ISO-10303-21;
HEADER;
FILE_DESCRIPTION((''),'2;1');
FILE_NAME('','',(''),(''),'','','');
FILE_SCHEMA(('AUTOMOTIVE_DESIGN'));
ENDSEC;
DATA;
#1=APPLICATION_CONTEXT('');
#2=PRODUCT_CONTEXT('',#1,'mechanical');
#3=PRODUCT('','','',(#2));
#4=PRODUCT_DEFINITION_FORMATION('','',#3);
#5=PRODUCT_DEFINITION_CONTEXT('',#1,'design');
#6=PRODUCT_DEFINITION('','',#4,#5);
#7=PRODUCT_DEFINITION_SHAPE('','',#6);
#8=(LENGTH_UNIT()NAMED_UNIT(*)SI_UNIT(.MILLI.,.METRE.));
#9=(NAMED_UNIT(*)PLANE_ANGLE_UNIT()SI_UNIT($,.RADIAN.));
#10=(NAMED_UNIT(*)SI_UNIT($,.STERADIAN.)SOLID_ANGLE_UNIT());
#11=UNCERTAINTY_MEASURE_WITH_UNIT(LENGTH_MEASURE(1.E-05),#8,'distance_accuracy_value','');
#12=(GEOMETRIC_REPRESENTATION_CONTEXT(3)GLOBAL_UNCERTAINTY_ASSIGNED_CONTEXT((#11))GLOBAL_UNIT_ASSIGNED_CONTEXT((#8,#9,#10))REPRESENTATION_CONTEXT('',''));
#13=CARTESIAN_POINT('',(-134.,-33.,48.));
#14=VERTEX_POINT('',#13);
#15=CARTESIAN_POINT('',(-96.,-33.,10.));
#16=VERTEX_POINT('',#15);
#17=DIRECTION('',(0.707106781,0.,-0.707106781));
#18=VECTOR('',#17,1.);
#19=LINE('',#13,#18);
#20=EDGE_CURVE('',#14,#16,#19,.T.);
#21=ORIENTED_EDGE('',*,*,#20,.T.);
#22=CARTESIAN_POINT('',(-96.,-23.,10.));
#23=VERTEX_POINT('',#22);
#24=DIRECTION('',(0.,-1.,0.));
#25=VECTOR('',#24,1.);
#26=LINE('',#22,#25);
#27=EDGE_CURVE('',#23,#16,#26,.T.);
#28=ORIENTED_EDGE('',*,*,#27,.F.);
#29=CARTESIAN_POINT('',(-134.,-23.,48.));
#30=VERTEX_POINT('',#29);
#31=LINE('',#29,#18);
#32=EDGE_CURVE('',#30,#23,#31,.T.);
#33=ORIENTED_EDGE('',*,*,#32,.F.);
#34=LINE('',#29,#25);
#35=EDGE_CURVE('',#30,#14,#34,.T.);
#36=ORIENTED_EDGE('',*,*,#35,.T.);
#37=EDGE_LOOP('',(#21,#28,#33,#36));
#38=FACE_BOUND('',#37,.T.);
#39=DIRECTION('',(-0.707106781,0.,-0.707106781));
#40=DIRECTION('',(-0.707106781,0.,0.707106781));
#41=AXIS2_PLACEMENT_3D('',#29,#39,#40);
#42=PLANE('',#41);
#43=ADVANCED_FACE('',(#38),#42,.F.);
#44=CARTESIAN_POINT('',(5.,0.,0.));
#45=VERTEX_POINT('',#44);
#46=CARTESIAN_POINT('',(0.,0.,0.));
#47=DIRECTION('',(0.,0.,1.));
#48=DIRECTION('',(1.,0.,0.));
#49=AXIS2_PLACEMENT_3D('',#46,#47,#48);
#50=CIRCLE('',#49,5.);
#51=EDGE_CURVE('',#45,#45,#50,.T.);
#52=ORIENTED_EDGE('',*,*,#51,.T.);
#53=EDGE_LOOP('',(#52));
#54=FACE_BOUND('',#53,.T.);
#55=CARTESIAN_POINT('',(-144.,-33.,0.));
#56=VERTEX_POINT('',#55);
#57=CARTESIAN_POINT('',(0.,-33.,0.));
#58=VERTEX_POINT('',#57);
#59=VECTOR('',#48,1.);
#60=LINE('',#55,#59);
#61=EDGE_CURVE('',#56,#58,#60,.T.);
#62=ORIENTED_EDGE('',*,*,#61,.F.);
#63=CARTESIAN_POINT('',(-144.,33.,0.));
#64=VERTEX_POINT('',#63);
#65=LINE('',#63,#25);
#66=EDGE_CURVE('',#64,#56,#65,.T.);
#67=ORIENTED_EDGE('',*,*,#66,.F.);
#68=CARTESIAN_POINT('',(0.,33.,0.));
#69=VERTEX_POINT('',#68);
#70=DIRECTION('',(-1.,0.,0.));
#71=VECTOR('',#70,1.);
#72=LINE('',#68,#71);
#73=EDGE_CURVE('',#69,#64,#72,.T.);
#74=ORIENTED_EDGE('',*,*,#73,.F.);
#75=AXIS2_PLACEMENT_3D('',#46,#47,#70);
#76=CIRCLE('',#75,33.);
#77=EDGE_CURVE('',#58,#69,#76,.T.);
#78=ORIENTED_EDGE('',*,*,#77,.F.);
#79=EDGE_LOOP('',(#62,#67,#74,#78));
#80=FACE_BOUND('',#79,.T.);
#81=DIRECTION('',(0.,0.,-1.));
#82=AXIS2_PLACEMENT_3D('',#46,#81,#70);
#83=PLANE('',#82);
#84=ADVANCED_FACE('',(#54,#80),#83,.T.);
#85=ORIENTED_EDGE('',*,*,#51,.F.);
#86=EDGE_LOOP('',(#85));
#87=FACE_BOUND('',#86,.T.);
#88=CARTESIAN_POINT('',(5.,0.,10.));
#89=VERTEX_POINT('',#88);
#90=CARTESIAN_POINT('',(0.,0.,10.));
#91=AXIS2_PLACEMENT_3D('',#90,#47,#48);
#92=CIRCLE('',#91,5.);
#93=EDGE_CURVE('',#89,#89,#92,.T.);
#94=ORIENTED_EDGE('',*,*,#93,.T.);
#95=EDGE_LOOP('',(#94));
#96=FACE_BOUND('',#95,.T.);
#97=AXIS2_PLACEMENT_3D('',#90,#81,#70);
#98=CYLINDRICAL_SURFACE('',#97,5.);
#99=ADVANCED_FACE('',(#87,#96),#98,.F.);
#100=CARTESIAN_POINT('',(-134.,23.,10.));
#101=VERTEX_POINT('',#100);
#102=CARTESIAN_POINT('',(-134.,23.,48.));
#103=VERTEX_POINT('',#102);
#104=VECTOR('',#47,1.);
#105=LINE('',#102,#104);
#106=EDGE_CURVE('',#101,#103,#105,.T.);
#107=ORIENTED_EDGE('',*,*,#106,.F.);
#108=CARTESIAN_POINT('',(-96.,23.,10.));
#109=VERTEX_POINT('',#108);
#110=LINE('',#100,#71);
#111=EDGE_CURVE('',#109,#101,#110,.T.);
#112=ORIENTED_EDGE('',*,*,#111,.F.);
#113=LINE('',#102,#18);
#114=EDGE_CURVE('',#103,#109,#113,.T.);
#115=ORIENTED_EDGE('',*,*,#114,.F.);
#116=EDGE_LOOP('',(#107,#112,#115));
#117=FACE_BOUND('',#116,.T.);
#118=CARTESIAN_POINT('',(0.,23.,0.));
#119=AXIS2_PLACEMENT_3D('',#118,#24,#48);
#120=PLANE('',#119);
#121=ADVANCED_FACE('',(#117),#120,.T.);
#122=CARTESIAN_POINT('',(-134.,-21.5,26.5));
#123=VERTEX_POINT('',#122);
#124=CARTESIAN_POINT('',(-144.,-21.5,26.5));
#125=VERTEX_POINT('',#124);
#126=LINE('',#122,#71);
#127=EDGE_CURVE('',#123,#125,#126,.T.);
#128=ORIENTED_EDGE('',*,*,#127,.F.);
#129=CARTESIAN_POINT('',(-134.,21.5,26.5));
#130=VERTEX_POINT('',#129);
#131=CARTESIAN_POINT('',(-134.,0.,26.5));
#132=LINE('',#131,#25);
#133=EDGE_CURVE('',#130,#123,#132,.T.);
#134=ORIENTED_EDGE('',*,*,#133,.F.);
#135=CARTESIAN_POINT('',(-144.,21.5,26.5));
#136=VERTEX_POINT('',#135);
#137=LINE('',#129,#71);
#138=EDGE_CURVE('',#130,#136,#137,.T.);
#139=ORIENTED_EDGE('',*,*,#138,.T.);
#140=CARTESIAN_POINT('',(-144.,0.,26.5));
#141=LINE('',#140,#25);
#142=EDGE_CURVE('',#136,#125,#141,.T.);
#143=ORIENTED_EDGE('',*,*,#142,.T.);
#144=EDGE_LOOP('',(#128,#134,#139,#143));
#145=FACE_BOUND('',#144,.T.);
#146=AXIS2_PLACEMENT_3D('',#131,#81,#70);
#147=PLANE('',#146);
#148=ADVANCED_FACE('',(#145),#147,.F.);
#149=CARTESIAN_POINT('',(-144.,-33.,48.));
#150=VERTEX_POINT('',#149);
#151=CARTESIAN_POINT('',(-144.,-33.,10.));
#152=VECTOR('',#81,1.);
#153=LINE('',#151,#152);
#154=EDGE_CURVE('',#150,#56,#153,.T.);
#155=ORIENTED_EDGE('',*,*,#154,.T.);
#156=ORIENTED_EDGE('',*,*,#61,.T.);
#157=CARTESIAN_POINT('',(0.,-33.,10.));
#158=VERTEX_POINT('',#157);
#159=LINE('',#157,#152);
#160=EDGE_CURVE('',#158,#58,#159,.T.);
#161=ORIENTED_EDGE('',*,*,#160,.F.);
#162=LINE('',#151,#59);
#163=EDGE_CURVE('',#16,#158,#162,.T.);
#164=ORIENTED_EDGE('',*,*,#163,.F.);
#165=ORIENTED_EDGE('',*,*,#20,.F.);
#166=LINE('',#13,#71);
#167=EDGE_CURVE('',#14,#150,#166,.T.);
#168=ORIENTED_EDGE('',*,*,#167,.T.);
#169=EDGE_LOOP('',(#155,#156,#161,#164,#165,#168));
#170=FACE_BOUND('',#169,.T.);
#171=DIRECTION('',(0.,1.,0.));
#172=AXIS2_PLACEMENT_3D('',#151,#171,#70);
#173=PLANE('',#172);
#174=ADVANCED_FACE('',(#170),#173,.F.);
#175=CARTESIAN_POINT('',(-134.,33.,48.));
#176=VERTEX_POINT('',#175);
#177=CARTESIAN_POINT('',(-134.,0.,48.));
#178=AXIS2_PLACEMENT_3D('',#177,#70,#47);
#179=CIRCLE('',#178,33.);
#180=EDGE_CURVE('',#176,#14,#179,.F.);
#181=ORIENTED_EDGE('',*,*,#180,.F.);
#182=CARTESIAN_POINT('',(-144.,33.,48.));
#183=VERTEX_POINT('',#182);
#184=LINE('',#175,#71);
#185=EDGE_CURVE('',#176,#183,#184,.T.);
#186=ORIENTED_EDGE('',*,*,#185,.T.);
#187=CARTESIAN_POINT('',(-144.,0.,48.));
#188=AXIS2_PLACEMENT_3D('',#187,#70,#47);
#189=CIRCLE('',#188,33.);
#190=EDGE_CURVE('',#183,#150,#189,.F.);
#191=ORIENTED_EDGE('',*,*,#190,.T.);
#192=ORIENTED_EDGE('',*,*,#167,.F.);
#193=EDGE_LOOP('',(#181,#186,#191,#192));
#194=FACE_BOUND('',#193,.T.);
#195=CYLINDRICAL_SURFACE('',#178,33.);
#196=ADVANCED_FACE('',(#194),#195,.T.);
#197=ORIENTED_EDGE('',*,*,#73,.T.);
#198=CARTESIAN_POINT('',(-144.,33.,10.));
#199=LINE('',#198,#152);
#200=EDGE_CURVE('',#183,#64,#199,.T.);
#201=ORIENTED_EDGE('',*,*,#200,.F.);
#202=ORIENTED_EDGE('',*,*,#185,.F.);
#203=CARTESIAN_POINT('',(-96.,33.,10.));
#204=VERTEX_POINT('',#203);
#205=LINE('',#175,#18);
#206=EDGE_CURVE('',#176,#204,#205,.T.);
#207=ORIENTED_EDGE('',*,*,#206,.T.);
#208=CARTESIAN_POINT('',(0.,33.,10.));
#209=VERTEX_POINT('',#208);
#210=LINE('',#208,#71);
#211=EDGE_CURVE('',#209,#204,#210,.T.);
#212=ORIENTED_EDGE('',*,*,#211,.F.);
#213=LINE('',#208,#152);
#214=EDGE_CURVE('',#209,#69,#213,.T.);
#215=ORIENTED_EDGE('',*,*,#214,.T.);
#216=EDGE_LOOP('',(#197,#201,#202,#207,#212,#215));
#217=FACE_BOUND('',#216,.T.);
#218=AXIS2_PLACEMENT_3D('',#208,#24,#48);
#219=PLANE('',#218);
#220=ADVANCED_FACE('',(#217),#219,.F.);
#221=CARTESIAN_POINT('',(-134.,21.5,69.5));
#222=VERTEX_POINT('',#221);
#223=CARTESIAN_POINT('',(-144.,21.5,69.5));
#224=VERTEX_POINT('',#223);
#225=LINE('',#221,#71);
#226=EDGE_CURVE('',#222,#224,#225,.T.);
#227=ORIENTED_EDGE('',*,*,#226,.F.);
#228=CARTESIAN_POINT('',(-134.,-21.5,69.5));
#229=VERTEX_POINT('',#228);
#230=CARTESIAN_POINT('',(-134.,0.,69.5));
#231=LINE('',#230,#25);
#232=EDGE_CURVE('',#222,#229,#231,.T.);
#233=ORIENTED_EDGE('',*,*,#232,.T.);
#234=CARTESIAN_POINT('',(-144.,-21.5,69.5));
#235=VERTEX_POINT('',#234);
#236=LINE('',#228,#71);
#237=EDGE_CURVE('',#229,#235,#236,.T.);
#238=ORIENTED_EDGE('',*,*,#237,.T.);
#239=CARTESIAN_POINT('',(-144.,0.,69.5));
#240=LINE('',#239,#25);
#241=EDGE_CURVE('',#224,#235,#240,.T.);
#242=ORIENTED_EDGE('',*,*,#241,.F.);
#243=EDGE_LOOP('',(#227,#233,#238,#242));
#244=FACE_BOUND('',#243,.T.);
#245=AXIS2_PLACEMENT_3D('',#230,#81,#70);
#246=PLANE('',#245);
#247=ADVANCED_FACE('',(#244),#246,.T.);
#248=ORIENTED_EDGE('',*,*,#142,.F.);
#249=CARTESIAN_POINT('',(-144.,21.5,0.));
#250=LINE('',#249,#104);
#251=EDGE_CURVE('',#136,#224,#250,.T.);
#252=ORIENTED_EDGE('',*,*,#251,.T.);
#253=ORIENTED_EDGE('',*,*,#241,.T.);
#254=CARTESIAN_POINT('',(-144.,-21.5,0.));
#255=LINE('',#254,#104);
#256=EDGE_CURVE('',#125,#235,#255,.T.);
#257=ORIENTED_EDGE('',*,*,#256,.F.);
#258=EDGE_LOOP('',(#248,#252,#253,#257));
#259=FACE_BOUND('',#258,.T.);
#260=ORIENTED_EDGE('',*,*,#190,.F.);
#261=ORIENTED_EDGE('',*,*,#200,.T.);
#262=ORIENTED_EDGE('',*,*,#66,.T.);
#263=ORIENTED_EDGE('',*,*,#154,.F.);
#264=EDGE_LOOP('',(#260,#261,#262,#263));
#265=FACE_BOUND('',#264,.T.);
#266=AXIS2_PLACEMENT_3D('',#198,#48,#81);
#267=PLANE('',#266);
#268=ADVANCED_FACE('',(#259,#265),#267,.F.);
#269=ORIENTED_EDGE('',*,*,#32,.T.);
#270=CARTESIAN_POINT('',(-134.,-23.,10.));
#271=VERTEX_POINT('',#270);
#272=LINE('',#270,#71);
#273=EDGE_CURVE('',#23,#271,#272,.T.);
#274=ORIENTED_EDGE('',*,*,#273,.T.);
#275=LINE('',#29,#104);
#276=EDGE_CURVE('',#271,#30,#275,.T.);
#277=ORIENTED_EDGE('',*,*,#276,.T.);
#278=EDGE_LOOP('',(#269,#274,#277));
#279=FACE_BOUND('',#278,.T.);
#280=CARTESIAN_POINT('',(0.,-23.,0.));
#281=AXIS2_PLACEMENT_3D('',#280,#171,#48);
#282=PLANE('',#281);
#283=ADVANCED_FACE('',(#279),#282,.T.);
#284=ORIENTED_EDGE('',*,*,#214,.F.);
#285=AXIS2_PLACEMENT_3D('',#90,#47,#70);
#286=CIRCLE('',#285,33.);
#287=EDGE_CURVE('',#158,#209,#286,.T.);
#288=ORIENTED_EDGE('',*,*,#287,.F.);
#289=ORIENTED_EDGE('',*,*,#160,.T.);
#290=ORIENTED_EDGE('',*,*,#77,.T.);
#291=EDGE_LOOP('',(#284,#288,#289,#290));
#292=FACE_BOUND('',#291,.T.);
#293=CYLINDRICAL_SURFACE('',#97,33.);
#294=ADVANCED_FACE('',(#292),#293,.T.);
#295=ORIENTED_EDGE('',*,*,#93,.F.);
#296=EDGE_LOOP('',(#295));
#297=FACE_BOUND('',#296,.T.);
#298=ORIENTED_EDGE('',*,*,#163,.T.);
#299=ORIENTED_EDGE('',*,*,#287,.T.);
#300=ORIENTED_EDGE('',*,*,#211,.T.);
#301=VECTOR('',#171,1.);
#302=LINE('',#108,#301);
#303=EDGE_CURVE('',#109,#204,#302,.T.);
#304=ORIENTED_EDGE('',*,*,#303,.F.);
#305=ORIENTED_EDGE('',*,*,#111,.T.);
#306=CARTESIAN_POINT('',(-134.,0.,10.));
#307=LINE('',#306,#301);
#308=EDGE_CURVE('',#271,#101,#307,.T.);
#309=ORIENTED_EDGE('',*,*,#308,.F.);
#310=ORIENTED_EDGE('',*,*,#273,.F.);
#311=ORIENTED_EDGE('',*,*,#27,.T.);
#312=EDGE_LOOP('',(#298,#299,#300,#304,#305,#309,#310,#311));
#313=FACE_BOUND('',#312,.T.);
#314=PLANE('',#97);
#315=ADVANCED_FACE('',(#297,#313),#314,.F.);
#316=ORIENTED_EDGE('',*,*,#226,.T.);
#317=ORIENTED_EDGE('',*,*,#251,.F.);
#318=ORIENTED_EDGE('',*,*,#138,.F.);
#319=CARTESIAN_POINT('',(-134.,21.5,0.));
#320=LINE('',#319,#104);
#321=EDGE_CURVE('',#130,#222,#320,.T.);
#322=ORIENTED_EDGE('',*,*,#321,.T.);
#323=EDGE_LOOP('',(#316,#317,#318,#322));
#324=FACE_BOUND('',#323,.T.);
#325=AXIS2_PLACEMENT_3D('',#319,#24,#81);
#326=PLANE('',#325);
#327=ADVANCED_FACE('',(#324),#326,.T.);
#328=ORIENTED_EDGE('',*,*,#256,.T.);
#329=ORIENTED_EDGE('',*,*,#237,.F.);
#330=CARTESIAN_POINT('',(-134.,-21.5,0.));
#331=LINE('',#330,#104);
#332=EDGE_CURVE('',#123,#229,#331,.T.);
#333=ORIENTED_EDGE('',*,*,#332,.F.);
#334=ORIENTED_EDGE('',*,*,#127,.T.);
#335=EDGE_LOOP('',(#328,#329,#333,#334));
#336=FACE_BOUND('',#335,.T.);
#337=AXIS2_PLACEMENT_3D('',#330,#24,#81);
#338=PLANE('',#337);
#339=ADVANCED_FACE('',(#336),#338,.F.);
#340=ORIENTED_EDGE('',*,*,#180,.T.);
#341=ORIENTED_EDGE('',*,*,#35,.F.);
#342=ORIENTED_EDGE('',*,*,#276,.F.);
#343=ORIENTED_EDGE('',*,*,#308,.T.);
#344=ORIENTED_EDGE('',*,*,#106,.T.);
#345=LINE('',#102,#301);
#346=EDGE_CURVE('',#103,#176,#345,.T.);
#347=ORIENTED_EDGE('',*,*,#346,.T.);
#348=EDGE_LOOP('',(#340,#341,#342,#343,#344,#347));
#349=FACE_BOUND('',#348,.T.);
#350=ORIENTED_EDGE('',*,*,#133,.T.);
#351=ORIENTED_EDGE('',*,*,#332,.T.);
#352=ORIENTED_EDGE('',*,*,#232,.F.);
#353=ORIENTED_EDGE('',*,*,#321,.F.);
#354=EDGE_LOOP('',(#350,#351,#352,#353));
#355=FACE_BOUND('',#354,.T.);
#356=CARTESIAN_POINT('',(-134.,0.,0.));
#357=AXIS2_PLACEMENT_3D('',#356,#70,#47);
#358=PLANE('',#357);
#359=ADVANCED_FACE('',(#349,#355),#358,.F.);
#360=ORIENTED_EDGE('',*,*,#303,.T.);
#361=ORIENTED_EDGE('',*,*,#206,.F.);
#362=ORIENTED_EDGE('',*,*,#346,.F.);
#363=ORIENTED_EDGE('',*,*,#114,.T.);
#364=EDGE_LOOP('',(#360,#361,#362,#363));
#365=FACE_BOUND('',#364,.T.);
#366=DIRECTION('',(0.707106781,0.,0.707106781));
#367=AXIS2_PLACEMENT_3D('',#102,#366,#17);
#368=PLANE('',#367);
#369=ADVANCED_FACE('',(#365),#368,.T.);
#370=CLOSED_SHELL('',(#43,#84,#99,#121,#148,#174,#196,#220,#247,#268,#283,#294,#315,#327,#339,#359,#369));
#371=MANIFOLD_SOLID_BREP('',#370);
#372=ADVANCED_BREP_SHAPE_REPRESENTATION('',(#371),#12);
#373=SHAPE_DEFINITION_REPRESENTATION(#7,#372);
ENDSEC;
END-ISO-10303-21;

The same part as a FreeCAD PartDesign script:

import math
import FreeCAD as App
import Part
import Sketcher
from FreeCAD import Vector
Q = App.Units.Quantity


def add_polygon(sketch, points):
    """Adds a closed chain of lines whose ends are joined by coincident constraints."""
    first, n = sketch.GeometryCount, len(points)
    for a, b in zip(points, points[1:] + points[:1]):
        sketch.addGeometry(Part.LineSegment(App.Vector(*a, 0), App.Vector(*b, 0)), False)
    for i in range(n):
        sketch.addConstraint(Sketcher.Constraint("Coincident", first + i, 2, first + (i + 1) % n, 1))

doc = App.newDocument("Part")
body = doc.addObject("PartDesign::Body", "Body")

# Sketch on XY plane
sketch1 = doc.addObject("Sketcher::SketchObject", "Sketch")
body.addObject(sketch1)
sketch1.AttachmentSupport = (doc.XY_Plane, [""])
sketch1.MapMode = "FlatFace"
sketch1.addGeometry([
    Part.LineSegment(Vector(0, 33, 0), Vector(-144, 33, 0)),  # 0
    Part.LineSegment(Vector(-144, 33, 0), Vector(-144, -33, 0)),  # 1
    Part.LineSegment(Vector(-144, -33, 0), Vector(0, -33, 0)),  # 2
    Part.ArcOfCircle(Part.Circle(Vector(0, 0, 0), Vector(0, 0, 1), 33), math.radians(-90), math.radians(90)),  # 3
    Part.Circle(Vector(0, 0, 0), Vector(0, 0, 1), 5),  # 4
], False)
sketch1.addConstraint([
    Sketcher.Constraint("Coincident", 0, 2, 1, 1),
    Sketcher.Constraint("Coincident", 1, 2, 2, 1),
    Sketcher.Constraint("Tangent", 2, 2, 3, 1),
    Sketcher.Constraint("Tangent", 3, 2, 0, 1),
    Sketcher.Constraint("Horizontal", 0),
    Sketcher.Constraint("Vertical", 1),
    Sketcher.Constraint("Horizontal", 2),
    Sketcher.Constraint("Coincident", 3, 3, -1, 1),
    Sketcher.Constraint("Coincident", 4, 3, -1, 1),
    Sketcher.Constraint("Diameter", 4, Q("10 mm")),
    Sketcher.Constraint("Radius", 3, Q("33 mm")),
    Sketcher.Constraint("DistanceX", 0, 2, 0, 1, Q("144 mm")),
])
pad1 = doc.addObject("PartDesign::Pad", "Pad")
body.addObject(pad1)
pad1.Profile = sketch1
pad1.Length = 10

# Sketch on YZ plane
sketch2 = doc.addObject("Sketcher::SketchObject", "Sketch001")
body.addObject(sketch2)
sketch2.AttachmentSupport = (doc.YZ_Plane, [""])
sketch2.MapMode = "FlatFace"
sketch2.AttachmentOffset = App.Placement(Vector(0, 0, -144), App.Rotation())
sketch2.addGeometry(Part.LineSegment(Vector(33, 48, 0), Vector(33, 10, 0)), False)  # 0
sketch2.addGeometry(Part.LineSegment(Vector(33, 10, 0), Vector(-33, 10, 0)), False)  # 1
sketch2.addGeometry(Part.LineSegment(Vector(-33, 10, 0), Vector(-33, 48, 0)), False)  # 2
sketch2.addGeometry(Part.ArcOfCircle(Part.Circle(Vector(0, 48, 0), Vector(0, 0, 1), 33), math.radians(0), math.radians(180)), False)  # 3
add_polygon(sketch2, [(-22, 70), (-22, 26), (22, 26), (22, 70)])  # lines 4-7
sketch2.addConstraint([
    Sketcher.Constraint("Coincident", 0, 2, 1, 1),
    Sketcher.Constraint("Coincident", 1, 2, 2, 1),
    Sketcher.Constraint("Tangent", 2, 2, 3, 2),
    Sketcher.Constraint("Tangent", 3, 1, 0, 1),
    Sketcher.Constraint("Vertical", 0),
    Sketcher.Constraint("Horizontal", 1),
    Sketcher.Constraint("Vertical", 2),
    Sketcher.Constraint("Vertical", 4),
    Sketcher.Constraint("Horizontal", 5),
    Sketcher.Constraint("Vertical", 6),
    Sketcher.Constraint("Horizontal", 7),
    Sketcher.Constraint("PointOnObject", 3, 3, -2),
    Sketcher.Constraint("Equal", 7, 4),
    Sketcher.Constraint("Radius", 3, Q("33 mm")),
    Sketcher.Constraint("DistanceX", 5, 1, 5, 2, Q("43 mm")),
    Sketcher.Constraint("DistanceY", 0, 2, 0, 1, Q("38 mm")),
    Sketcher.Constraint("DistanceY", -1, 1, 3, 3, Q("48 mm")),
    Sketcher.Constraint("DistanceX", 4, 2, -1, 1, Q("21.5 mm")),
    Sketcher.Constraint("DistanceY", -1, 1, 4, 2, Q("26.5 mm")),
])
pad2 = doc.addObject("PartDesign::Pad", "Pad001")
body.addObject(pad2)
pad2.Profile = sketch2
pad2.Length = 10

# Sketch on XZ plane
sketch3 = doc.addObject("Sketcher::SketchObject", "Sketch002")
body.addObject(sketch3)
sketch3.AttachmentSupport = (doc.XZ_Plane, [""])
sketch3.MapMode = "FlatFace"
sketch3.AttachmentOffset = App.Placement(Vector(0, 0, -33), App.Rotation())
add_polygon(sketch3, [(-134, 48), (-96, 10), (-134, 10)])  # lines 0-2
sketch3.addConstraint([
    Sketcher.Constraint("Horizontal", 1),
    Sketcher.Constraint("Vertical", 2),
    Sketcher.Constraint("Equal", 1, 2),
    Sketcher.Constraint("DistanceX", 1, 2, 1, 1, Q("38 mm")),
    Sketcher.Constraint("DistanceX", 0, 2, -1, 1, Q("96 mm")),
    Sketcher.Constraint("DistanceY", -1, 1, 0, 2, Q("10 mm")),
])
pad3 = doc.addObject("PartDesign::Pad", "Pad002")
body.addObject(pad3)
pad3.Profile = sketch3
pad3.Length = 10
doc.recompute()

mirrored = doc.addObject("PartDesign::Mirrored", "Mirrored")
body.addObject(mirrored)
mirrored.Originals = [pad3]
mirrored.MirrorPlane = (doc.XZ_Plane, [""])
body.Tip = mirrored

doc.recompute()
